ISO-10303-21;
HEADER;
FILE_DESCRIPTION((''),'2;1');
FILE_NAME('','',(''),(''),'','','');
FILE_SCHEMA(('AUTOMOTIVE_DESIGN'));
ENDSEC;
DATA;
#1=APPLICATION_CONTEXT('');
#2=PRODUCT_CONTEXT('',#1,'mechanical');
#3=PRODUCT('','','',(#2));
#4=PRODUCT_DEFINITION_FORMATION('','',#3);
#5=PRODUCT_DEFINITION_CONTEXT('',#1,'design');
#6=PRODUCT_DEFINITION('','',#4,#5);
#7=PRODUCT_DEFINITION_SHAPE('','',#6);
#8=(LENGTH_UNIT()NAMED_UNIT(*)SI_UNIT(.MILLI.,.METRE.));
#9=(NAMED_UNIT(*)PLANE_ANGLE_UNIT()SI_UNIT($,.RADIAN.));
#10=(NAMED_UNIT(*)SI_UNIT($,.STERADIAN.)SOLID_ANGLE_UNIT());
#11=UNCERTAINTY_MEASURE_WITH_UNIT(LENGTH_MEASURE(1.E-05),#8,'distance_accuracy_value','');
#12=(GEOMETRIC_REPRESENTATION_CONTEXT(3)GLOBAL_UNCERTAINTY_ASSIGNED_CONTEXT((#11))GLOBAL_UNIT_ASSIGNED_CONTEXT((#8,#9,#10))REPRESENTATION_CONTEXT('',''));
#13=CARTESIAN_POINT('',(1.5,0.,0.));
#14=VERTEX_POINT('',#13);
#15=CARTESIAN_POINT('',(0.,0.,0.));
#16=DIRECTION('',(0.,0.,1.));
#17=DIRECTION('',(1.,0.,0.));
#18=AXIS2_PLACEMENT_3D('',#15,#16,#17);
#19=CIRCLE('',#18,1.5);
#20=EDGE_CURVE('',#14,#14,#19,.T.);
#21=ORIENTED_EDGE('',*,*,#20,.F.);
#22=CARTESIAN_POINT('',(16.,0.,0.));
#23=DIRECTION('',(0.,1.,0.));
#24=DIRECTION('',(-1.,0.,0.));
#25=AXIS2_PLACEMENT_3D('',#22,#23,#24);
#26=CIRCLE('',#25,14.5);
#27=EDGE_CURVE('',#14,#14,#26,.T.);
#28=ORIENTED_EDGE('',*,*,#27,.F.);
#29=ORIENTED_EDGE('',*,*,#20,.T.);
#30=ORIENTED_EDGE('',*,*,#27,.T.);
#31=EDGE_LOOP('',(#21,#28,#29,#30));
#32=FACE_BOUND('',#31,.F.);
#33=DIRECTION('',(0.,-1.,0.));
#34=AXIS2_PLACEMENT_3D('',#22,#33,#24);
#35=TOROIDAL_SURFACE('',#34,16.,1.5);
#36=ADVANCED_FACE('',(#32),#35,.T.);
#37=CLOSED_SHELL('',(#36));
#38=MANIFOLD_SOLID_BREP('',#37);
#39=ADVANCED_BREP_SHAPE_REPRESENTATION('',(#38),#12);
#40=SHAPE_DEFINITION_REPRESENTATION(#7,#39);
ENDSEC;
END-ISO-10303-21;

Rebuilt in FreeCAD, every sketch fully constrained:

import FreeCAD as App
import Part
import Sketcher
from FreeCAD import Vector

doc = App.newDocument("Part")
body = doc.addObject("PartDesign::Body", "Body")

# Sketch on XY plane
sketch1 = body.newObject("Sketcher::SketchObject", "Sketch")
sketch1.AttachmentSupport = (doc.getObject("XY_Plane"), [""])
sketch1.MapMode = "FlatFace"
sketch1.addGeometry(Part.Circle(Vector(0, 0, 0), Vector(0, 0, 1), 1.5), False)
sketch1.addGeometry(Part.LineSegment(Vector(16, 0, 0), Vector(16, 10, 0)), True)  # axis
sketch1.addConstraint(Sketcher.Constraint("Vertical", 1))
sketch1.addConstraint(Sketcher.Constraint("Coincident", 0, 3, -1, 1))
sketch1.addConstraint(Sketcher.Constraint("PointOnObject", 1, 1, -1))
sketch1.addConstraint(Sketcher.Constraint("Diameter", 0, 3.0))
sketch1.addConstraint(Sketcher.Constraint("DistanceY", 1, 1, 1, 2, 10.0))
sketch1.addConstraint(Sketcher.Constraint("DistanceX", -1, 1, 1, 1, 16.0))
revolution = body.newObject("PartDesign::Revolution", "Revolution")
revolution.Profile = sketch1
revolution.ReferenceAxis = (sketch1, ["Axis0"])
revolution.Angle = 360

doc.recompute()
